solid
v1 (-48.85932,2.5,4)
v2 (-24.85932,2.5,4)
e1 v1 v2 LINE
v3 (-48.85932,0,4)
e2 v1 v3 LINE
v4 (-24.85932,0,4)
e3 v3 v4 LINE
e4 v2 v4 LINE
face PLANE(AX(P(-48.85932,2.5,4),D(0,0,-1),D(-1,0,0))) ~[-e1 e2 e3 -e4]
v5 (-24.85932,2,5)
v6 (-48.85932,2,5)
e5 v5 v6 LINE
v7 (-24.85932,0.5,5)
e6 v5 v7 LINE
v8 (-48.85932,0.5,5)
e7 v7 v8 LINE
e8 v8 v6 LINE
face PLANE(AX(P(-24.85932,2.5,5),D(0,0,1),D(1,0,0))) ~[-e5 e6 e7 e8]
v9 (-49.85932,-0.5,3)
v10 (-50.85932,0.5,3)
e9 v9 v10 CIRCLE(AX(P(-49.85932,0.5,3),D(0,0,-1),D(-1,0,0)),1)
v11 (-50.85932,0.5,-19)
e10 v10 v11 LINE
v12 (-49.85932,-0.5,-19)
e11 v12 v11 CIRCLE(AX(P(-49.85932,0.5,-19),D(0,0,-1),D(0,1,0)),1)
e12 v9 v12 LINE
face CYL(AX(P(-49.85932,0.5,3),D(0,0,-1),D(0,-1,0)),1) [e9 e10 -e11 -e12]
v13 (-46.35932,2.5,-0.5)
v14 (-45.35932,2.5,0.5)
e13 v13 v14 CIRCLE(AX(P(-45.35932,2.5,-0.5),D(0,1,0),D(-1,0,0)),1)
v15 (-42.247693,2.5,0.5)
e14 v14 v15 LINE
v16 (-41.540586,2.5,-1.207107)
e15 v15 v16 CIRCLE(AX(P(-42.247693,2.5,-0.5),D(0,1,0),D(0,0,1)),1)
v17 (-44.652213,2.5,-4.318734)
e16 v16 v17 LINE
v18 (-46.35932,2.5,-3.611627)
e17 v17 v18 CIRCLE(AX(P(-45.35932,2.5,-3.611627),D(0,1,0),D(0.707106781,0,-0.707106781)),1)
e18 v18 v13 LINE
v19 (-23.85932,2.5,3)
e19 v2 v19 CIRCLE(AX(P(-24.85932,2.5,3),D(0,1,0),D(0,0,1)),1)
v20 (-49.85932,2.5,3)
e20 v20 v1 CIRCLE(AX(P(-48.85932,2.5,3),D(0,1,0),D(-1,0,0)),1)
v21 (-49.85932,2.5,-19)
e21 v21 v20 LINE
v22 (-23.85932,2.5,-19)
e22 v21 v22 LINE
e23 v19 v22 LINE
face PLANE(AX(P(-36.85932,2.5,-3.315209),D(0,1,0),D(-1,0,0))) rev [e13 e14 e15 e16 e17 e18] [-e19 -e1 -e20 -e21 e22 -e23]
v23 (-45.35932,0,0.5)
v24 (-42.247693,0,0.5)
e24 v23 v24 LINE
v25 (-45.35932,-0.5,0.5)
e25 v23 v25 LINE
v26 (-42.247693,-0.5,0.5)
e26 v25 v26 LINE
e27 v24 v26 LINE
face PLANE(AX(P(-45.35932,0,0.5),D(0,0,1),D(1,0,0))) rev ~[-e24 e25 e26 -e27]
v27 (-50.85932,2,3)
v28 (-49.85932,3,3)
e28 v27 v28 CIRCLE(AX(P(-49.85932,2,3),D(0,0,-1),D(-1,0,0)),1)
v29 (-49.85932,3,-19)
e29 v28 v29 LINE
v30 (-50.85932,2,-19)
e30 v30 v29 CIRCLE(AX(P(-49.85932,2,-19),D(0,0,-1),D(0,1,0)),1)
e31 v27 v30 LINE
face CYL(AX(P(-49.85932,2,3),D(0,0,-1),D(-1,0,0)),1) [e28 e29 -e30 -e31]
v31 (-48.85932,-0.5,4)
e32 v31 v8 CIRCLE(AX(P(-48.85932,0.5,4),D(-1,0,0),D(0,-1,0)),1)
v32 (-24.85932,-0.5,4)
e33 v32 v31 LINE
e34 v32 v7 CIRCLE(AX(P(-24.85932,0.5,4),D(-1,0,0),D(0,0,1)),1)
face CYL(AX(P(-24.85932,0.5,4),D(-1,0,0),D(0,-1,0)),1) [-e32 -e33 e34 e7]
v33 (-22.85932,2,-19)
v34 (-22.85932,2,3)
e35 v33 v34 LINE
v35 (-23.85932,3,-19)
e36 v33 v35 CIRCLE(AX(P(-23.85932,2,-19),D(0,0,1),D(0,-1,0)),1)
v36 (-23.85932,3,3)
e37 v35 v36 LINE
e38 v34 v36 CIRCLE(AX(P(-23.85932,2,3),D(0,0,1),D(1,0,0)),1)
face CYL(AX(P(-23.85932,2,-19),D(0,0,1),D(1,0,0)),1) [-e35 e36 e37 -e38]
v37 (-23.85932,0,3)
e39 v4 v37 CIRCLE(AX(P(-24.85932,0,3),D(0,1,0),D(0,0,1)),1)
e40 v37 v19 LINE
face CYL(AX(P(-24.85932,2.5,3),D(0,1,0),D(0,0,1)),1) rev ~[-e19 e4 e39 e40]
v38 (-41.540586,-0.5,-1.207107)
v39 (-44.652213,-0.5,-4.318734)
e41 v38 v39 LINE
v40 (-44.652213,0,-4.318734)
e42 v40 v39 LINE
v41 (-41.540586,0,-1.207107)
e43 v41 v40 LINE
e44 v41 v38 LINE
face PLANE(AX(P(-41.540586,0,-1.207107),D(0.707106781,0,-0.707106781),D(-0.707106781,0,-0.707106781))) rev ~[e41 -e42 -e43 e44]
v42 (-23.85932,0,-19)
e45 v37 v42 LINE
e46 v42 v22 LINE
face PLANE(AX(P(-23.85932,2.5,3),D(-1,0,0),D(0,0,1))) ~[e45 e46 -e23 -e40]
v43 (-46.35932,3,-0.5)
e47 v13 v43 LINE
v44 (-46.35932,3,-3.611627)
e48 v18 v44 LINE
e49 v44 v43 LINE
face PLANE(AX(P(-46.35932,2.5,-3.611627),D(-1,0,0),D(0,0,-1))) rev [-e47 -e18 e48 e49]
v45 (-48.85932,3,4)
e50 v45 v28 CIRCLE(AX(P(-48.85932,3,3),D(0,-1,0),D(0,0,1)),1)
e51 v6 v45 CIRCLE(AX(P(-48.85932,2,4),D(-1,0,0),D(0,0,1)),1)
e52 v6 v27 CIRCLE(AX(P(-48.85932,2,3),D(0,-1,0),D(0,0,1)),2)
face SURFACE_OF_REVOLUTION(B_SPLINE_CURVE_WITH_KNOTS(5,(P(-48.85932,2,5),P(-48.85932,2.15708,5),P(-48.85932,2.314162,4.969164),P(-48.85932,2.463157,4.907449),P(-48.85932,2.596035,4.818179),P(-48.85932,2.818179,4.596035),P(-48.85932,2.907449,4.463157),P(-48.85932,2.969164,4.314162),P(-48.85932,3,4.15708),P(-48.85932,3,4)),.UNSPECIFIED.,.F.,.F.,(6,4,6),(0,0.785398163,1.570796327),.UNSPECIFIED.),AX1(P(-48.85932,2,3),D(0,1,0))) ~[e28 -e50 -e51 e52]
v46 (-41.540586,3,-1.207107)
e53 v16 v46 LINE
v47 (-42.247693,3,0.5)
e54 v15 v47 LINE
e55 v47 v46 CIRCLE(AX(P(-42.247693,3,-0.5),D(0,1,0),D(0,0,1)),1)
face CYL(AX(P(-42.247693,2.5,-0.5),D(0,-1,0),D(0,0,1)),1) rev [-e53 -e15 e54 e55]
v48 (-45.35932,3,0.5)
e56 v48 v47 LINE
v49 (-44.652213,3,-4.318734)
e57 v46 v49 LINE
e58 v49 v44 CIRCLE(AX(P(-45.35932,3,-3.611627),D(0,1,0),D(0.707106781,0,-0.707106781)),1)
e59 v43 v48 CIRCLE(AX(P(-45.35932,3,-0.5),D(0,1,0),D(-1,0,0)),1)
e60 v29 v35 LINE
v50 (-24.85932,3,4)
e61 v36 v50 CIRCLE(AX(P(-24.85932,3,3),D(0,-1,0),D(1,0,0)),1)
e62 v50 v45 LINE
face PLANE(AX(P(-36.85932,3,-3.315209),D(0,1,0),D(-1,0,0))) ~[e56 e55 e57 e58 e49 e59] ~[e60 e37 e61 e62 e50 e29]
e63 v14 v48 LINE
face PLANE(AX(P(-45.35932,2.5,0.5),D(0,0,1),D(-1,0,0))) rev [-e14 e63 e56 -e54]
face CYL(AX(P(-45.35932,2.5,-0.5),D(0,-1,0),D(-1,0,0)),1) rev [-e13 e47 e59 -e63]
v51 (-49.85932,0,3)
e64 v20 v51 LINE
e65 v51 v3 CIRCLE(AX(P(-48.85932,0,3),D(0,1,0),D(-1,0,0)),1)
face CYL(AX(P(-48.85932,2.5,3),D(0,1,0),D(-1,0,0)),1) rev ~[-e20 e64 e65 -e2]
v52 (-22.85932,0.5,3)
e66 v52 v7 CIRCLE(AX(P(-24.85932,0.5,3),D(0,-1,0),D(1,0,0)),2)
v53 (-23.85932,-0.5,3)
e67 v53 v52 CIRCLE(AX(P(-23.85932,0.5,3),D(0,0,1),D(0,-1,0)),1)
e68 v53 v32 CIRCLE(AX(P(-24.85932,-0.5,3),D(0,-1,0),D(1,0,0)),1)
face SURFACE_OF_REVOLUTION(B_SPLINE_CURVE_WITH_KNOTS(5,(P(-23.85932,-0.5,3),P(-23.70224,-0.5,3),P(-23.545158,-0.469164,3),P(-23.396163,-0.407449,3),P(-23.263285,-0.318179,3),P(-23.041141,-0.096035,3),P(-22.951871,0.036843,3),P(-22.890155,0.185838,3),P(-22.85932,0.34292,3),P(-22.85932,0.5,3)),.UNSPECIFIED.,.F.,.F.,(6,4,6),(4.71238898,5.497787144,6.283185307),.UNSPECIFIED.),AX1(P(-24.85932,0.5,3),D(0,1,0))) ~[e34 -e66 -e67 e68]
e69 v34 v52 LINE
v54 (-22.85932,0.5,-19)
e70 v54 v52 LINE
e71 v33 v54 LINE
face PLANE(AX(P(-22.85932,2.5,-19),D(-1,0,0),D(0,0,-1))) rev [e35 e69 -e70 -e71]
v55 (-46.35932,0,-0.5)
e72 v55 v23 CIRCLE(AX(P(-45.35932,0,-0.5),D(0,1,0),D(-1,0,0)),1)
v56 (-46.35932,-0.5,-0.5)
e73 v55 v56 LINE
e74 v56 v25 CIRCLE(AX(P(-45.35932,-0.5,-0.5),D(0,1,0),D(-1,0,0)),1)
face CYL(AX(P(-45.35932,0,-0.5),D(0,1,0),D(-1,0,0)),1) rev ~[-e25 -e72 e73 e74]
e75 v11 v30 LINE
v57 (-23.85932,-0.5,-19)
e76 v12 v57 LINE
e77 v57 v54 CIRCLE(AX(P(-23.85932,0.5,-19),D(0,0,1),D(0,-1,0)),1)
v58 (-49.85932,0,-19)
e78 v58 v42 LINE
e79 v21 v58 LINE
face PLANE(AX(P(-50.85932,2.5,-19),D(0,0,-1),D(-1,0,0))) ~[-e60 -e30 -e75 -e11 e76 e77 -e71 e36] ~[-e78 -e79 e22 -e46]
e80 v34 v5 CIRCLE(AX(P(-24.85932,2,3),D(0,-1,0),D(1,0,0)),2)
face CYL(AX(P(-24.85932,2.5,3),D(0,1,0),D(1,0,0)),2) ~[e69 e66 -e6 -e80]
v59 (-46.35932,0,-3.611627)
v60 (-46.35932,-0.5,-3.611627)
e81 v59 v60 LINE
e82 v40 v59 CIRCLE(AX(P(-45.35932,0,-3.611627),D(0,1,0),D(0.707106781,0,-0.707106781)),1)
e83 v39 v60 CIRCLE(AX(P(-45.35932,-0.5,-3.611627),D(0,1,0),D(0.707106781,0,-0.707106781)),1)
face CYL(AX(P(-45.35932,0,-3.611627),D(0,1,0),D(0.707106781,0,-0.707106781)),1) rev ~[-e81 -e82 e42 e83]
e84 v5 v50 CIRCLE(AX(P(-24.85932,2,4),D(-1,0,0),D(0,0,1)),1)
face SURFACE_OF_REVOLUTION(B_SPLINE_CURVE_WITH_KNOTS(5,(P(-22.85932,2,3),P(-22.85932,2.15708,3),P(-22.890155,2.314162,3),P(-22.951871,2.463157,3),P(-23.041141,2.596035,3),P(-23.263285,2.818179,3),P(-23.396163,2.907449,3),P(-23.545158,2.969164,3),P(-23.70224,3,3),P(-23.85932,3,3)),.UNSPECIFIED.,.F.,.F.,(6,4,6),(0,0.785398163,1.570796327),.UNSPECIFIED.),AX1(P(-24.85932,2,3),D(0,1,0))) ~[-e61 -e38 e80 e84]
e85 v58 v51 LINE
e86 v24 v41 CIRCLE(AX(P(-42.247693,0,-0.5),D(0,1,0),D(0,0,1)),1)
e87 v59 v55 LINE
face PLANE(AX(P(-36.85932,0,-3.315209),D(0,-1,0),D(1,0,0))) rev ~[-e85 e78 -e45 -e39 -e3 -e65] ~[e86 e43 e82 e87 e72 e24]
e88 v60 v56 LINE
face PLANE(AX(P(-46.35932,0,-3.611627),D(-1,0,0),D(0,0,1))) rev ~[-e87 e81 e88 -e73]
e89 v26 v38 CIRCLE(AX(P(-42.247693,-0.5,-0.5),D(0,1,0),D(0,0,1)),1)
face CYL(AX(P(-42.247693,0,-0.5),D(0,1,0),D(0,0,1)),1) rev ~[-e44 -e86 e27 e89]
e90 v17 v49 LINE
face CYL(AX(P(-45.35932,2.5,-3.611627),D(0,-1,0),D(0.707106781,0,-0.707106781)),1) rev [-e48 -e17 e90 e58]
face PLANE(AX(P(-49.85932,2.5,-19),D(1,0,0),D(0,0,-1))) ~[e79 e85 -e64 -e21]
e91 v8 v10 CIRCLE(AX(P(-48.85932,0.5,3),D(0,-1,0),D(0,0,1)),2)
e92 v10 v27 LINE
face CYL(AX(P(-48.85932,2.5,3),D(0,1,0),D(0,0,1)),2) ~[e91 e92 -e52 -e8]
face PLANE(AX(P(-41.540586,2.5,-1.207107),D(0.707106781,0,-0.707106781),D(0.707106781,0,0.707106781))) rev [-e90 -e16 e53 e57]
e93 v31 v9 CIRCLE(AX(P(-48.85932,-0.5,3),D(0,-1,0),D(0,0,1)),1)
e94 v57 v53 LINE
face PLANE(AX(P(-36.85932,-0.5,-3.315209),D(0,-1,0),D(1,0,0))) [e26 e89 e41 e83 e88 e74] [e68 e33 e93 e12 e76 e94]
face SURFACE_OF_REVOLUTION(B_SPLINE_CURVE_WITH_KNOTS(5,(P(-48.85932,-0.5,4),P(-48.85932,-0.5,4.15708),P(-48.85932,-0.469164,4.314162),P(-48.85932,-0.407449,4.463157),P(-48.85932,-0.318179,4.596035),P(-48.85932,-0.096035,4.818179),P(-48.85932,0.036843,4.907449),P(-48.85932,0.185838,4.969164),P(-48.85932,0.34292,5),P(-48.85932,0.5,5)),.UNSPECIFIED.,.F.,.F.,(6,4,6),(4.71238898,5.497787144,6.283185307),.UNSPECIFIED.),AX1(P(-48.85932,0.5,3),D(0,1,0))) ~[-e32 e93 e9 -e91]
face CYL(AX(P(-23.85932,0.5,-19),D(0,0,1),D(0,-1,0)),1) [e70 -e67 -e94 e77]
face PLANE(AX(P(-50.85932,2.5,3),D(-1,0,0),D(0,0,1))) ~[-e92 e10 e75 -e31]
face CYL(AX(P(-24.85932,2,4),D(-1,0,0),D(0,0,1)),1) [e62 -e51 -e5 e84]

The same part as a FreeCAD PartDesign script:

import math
import FreeCAD as App
import Part
import Sketcher
from FreeCAD import Vector
Q = App.Units.Quantity


def edges_at(feature, points):
    """Names of the edges that pass closest to the given points."""
    edges = feature.Shape.Edges
    near = lambda p: min(range(len(edges)), key=lambda i: edges[i].distToShape(Part.Vertex(*p))[0])
    return sorted({f"Edge{near(p) + 1}" for p in points})

doc = App.newDocument("Part")
params = doc.addObject("Spreadsheet::Sheet", "Params")
for row, (alias, value) in enumerate([
    ("sketch1_radius", "2 mm"),
    ("sketch1_radius2", "1 mm"),
    ("sketch1_width", "28 mm"),
    ("sketch1_height", "22 mm"),
    ("pad1_length", "0.5 mm"),
    ("sketch2_radius", "1 mm"),
    ("sketch2_radius2", "2 mm"),
    ("sketch2_width", "24 mm"),
    ("sketch2_height", "22 mm"),
    ("pad2_length", "1.25 mm"),
    ("fillet_radius", "1 mm"),
], start=1):
    params.set(f"A{row}", alias)
    params.set(f"B{row}", "=" + value)
    params.setAlias(f"B{row}", alias)

body = doc.addObject("PartDesign::Body", "Body")

sketch1 = body.newObject("Sketcher::SketchObject", "Sketch")
sketch1.AttachmentSupport = (doc.getObject("XZ_Plane"), [""])
sketch1.MapMode = "FlatFace"
sketch1.addGeometry([
    Part.LineSegment(Vector(-50.85932, -19, 0), Vector(-22.85932, -19, 0)),
    Part.LineSegment(Vector(-22.85932, -19, 0), Vector(-22.85932, 3, 0)),
    Part.ArcOfCircle(Part.Circle(Vector(-24.85932, 3, 0), Vector(0, 0, 1), 2), math.radians(0), math.radians(90)),
    Part.LineSegment(Vector(-24.85932, 5, 0), Vector(-48.85932, 5, 0)),
    Part.ArcOfCircle(Part.Circle(Vector(-48.85932, 3, 0), Vector(0, 0, 1), 2), math.radians(90), math.radians(180)),
    Part.LineSegment(Vector(-50.85932, 3, 0), Vector(-50.85932, -19, 0)),
    Part.ArcOfCircle(Part.Circle(Vector(-42.247693, -0.5, 0), Vector(0, 0, 1), 1), math.radians(-45), math.radians(90)),
    Part.LineSegment(Vector(-41.540586, -1.207107, 0), Vector(-44.652213, -4.318734, 0)),
    Part.ArcOfCircle(Part.Circle(Vector(-45.35932, -3.611627, 0), Vector(0, 0, 1), 1), math.radians(180), math.radians(315)),
    Part.LineSegment(Vector(-46.35932, -3.611627, 0), Vector(-46.35932, -0.5, 0)),
    Part.ArcOfCircle(Part.Circle(Vector(-45.35932, -0.5, 0), Vector(0, 0, 1), 1), math.radians(90), math.radians(180)),
    Part.LineSegment(Vector(-45.35932, 0.5, 0), Vector(-42.247693, 0.5, 0)),
], False)
sketch1.addConstraint([
    Sketcher.Constraint("Coincident", 0, 2, 1, 1),
    Sketcher.Constraint("Tangent", 1, 2, 2, 1),
    Sketcher.Constraint("Tangent", 2, 2, 3, 1),
    Sketcher.Constraint("Tangent", 3, 2, 4, 1),
    Sketcher.Constraint("Tangent", 4, 2, 5, 1),
    Sketcher.Constraint("Coincident", 5, 2, 0, 1),
    Sketcher.Constraint("Tangent", 6, 1, 7, 1),
    Sketcher.Constraint("Tangent", 7, 2, 8, 2),
    Sketcher.Constraint("Tangent", 8, 1, 9, 1),
    Sketcher.Constraint("Tangent", 9, 2, 10, 2),
    Sketcher.Constraint("Tangent", 10, 1, 11, 1),
    Sketcher.Constraint("Tangent", 11, 2, 6, 2),
    Sketcher.Constraint("Horizontal", 0),
    Sketcher.Constraint("Vertical", 1),
    Sketcher.Constraint("Horizontal", 3),
    Sketcher.Constraint("Vertical", 5),
    Sketcher.Constraint("Vertical", 9),
    Sketcher.Constraint("Horizontal", 11),
    Sketcher.Constraint("Equal", 2, 4),
    Sketcher.Constraint("Equal", 6, 8),
    Sketcher.Constraint("Equal", 8, 10),
    Sketcher.Constraint("Equal", 11, 9),
    Sketcher.Constraint("Radius", 2, Q("2 mm")),
    Sketcher.Constraint("Radius", 6, Q("1 mm")),
    Sketcher.Constraint("DistanceX", 0, 1, 0, 2, Q("28 mm")),
    Sketcher.Constraint("DistanceY", 1, 1, 1, 2, Q("22 mm")),
    Sketcher.Constraint("DistanceY", -1, 1, 2, 3, Q("3 mm")),
    Sketcher.Constraint("DistanceY", 6, 3, -1, 1, Q("0.5 mm")),
    Sketcher.Constraint("DistanceX", 4, 3, 8, 3, Q("3.5 mm")),
    Sketcher.Constraint("DistanceX", 11, 1, 11, 2, Q("3.111627 mm")),
    Sketcher.Constraint("DistanceX", 2, 3, -1, 1, Q("24.85932 mm")),
])
sketch1.setExpression("Constraints[22]", "Params.sketch1_radius")
sketch1.setExpression("Constraints[23]", "Params.sketch1_radius2")
sketch1.setExpression("Constraints[24]", "Params.sketch1_width")
sketch1.setExpression("Constraints[25]", "Params.sketch1_height")
pad1 = body.newObject("PartDesign::Pad", "Pad")
pad1.Profile = sketch1
pad1.setExpression("Length", "Params.pad1_length")

sketch2 = body.newObject("Sketcher::SketchObject", "Sketch001")
sketch2.AttachmentSupport = (doc.getObject("XZ_Plane"), [""])
sketch2.MapMode = "FlatFace"
sketch2.addGeometry([
    Part.LineSegment(Vector(-50.85932, -19, 0), Vector(-49.85932, -19, 0)),
    Part.LineSegment(Vector(-49.85932, -19, 0), Vector(-49.85932, 3, 0)),
    Part.ArcOfCircle(Part.Circle(Vector(-48.85932, 3, 0), Vector(0, 0, 1), 1), math.radians(90), math.radians(180)),
    Part.LineSegment(Vector(-48.85932, 4, 0), Vector(-24.85932, 4, 0)),
    Part.ArcOfCircle(Part.Circle(Vector(-24.85932, 3, 0), Vector(0, 0, 1), 1), math.radians(0), math.radians(90)),
    Part.LineSegment(Vector(-23.85932, 3, 0), Vector(-23.85932, -19, 0)),
    Part.LineSegment(Vector(-23.85932, -19, 0), Vector(-22.85932, -19, 0)),
    Part.LineSegment(Vector(-22.85932, -19, 0), Vector(-22.85932, 3, 0)),
    Part.ArcOfCircle(Part.Circle(Vector(-24.85932, 3, 0), Vector(0, 0, 1), 2), math.radians(0), math.radians(90)),
    Part.LineSegment(Vector(-24.85932, 5, 0), Vector(-48.85932, 5, 0)),
    Part.ArcOfCircle(Part.Circle(Vector(-48.85932, 3, 0), Vector(0, 0, 1), 2), math.radians(90), math.radians(180)),
    Part.LineSegment(Vector(-50.85932, 3, 0), Vector(-50.85932, -19, 0)),
], False)
sketch2.addConstraint([
    Sketcher.Constraint("Coincident", 0, 2, 1, 1),
    Sketcher.Constraint("Tangent", 1, 2, 2, 2),
    Sketcher.Constraint("Tangent", 2, 1, 3, 1),
    Sketcher.Constraint("Tangent", 3, 2, 4, 2),
    Sketcher.Constraint("Tangent", 4, 1, 5, 1),
    Sketcher.Constraint("Coincident", 5, 2, 6, 1),
    Sketcher.Constraint("Coincident", 6, 2, 7, 1),
    Sketcher.Constraint("Tangent", 7, 2, 8, 1),
    Sketcher.Constraint("Tangent", 8, 2, 9, 1),
    Sketcher.Constraint("Tangent", 9, 2, 10, 1),
    Sketcher.Constraint("Tangent", 10, 2, 11, 1),
    Sketcher.Constraint("Coincident", 11, 2, 0, 1),
    Sketcher.Constraint("Horizontal", 0),
    Sketcher.Constraint("Vertical", 1),
    Sketcher.Constraint("Horizontal", 3),
    Sketcher.Constraint("Vertical", 5),
    Sketcher.Constraint("Horizontal", 6),
    Sketcher.Constraint("Vertical", 7),
    Sketcher.Constraint("Horizontal", 9),
    Sketcher.Constraint("Vertical", 11),
    Sketcher.Constraint("Coincident", 8, 3, 4, 3),
    Sketcher.Constraint("Coincident", 10, 3, 2, 3),
    Sketcher.Constraint("Equal", 2, 4),
    Sketcher.Constraint("Horizontal", 0, 2, 5, 2),
    Sketcher.Constraint("Radius", 2, Q("1 mm")),
    Sketcher.Constraint("Radius", 8, Q("2 mm")),
    Sketcher.Constraint("DistanceX", 3, 1, 3, 2, Q("24 mm")),
    Sketcher.Constraint("DistanceY", 1, 1, 1, 2, Q("22 mm")),
    Sketcher.Constraint("DistanceY", -1, 1, 2, 3, Q("3 mm")),
    Sketcher.Constraint("DistanceX", 2, 3, -1, 1, Q("48.85932 mm")),
])
sketch2.setExpression("Constraints[24]", "Params.sketch2_radius")
sketch2.setExpression("Constraints[25]", "Params.sketch2_radius2")
sketch2.setExpression("Constraints[26]", "Params.sketch2_width")
sketch2.setExpression("Constraints[27]", "Params.sketch2_height")
pad2 = body.newObject("PartDesign::Pad", "Pad001")
pad2.Profile = sketch2
pad2.setExpression("Length", "Params.pad2_length")
pad2.Reversed = True
body2 = doc.addObject("PartDesign::Body", "Body001")
doc.recompute()

body2.BaseFeature = body
doc.recompute()

mirroring = doc.addObject("Part::Mirroring", "Mirroring")
mirroring.Source = body
mirroring.Base = Vector(-36.85932, 1.25, -3.097081)
mirroring.Normal = Vector(0, 1, 0)
body3 = doc.addObject("PartDesign::Body", "Body002")
body3.BaseFeature = mirroring
boolean = body2.newObject("PartDesign::Boolean", "Boolean")
boolean.Type = "Fuse"
boolean.addObjects([body3])
doc.recompute()

fillet = body2.newObject("PartDesign::Fillet", "Fillet")
fillet.Base = (boolean, edges_at(boolean, [(-50.859, 3, -8), (-50.859, -0.5, -8)]))
fillet.setExpression("Radius", "Params.fillet_radius")
mirroring.Visibility = False

doc.recompute()
